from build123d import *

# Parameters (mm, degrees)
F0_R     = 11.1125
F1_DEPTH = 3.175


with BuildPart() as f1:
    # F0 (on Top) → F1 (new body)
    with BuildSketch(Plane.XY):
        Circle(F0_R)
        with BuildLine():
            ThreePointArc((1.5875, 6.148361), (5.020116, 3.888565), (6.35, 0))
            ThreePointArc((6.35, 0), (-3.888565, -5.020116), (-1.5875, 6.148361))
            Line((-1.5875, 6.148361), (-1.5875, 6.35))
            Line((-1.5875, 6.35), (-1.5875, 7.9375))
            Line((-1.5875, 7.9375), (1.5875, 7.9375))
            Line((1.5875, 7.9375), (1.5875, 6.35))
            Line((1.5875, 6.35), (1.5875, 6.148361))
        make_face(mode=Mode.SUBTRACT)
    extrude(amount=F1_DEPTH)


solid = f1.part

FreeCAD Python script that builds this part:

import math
import FreeCAD as App
import Part
import Sketcher

V = App.Vector
Q = App.Units.Quantity

doc = App.newDocument("Part")
body = doc.addObject("PartDesign::Body", "Body")

sketch1 = body.newObject("Sketcher::SketchObject", "Sketch")
sketch1.AttachmentSupport = (doc.getObject("XY_Plane"), [""])
sketch1.MapMode = "FlatFace"
sketch1.addGeometry([
    Part.Circle(V(0, 0, 0), V(0, 0, 1), 11.1),
    Part.LineSegment(V(1.6, 7.9, 0), V(1.6, 6.1, 0)),
    Part.ArcOfCircle(Part.Circle(V(0, 0, 0), V(0, 0, 1), 6.3), math.radians(0), math.radians(76)),
    Part.ArcOfCircle(Part.Circle(V(0, 0, 0), V(0, 0, 1), 6.4), math.radians(104), math.radians(360)),
    Part.LineSegment(V(-1.6, 6.1, 0), V(-1.6, 7.9, 0)),
    Part.LineSegment(V(-1.6, 7.9, 0), V(1.6, 7.9, 0)),
], False)
sketch1.addConstraint([
    Sketcher.Constraint("Coincident", 1, 2, 2, 2),
    Sketcher.Constraint("Tangent", 2, 1, 3, 2),
    Sketcher.Constraint("Coincident", 3, 1, 4, 1),
    Sketcher.Constraint("Coincident", 4, 2, 5, 1),
    Sketcher.Constraint("Coincident", 5, 2, 1, 1),
    Sketcher.Constraint("Vertical", 1),
    Sketcher.Constraint("Vertical", 4),
    Sketcher.Constraint("Horizontal", 5),
    Sketcher.Constraint("Coincident", 0, 3, -1, 1),
    Sketcher.Constraint("Coincident", 2, 3, -1, 1),
    Sketcher.Constraint("Equal", 2, 3),
    Sketcher.Constraint("PointOnObject", 2, 1, -1),
    Sketcher.Constraint("Horizontal", 1, 2, 3, 1),
    Sketcher.Constraint("Radius", 2, Q("0.25 in")),
    Sketcher.Constraint("Diameter", 0, Q("0.875 in")),
    Sketcher.Constraint("DistanceX", 5, 1, 5, 2, Q("0.125 in")),
    Sketcher.Constraint("DistanceY", -1, 1, 4, 2, Q("0.3125 in")),
])
pad1 = body.newObject("PartDesign::Pad", "Pad")
pad1.Profile = sketch1
pad1.Length = Q("0.125 in")

doc.recompute()
